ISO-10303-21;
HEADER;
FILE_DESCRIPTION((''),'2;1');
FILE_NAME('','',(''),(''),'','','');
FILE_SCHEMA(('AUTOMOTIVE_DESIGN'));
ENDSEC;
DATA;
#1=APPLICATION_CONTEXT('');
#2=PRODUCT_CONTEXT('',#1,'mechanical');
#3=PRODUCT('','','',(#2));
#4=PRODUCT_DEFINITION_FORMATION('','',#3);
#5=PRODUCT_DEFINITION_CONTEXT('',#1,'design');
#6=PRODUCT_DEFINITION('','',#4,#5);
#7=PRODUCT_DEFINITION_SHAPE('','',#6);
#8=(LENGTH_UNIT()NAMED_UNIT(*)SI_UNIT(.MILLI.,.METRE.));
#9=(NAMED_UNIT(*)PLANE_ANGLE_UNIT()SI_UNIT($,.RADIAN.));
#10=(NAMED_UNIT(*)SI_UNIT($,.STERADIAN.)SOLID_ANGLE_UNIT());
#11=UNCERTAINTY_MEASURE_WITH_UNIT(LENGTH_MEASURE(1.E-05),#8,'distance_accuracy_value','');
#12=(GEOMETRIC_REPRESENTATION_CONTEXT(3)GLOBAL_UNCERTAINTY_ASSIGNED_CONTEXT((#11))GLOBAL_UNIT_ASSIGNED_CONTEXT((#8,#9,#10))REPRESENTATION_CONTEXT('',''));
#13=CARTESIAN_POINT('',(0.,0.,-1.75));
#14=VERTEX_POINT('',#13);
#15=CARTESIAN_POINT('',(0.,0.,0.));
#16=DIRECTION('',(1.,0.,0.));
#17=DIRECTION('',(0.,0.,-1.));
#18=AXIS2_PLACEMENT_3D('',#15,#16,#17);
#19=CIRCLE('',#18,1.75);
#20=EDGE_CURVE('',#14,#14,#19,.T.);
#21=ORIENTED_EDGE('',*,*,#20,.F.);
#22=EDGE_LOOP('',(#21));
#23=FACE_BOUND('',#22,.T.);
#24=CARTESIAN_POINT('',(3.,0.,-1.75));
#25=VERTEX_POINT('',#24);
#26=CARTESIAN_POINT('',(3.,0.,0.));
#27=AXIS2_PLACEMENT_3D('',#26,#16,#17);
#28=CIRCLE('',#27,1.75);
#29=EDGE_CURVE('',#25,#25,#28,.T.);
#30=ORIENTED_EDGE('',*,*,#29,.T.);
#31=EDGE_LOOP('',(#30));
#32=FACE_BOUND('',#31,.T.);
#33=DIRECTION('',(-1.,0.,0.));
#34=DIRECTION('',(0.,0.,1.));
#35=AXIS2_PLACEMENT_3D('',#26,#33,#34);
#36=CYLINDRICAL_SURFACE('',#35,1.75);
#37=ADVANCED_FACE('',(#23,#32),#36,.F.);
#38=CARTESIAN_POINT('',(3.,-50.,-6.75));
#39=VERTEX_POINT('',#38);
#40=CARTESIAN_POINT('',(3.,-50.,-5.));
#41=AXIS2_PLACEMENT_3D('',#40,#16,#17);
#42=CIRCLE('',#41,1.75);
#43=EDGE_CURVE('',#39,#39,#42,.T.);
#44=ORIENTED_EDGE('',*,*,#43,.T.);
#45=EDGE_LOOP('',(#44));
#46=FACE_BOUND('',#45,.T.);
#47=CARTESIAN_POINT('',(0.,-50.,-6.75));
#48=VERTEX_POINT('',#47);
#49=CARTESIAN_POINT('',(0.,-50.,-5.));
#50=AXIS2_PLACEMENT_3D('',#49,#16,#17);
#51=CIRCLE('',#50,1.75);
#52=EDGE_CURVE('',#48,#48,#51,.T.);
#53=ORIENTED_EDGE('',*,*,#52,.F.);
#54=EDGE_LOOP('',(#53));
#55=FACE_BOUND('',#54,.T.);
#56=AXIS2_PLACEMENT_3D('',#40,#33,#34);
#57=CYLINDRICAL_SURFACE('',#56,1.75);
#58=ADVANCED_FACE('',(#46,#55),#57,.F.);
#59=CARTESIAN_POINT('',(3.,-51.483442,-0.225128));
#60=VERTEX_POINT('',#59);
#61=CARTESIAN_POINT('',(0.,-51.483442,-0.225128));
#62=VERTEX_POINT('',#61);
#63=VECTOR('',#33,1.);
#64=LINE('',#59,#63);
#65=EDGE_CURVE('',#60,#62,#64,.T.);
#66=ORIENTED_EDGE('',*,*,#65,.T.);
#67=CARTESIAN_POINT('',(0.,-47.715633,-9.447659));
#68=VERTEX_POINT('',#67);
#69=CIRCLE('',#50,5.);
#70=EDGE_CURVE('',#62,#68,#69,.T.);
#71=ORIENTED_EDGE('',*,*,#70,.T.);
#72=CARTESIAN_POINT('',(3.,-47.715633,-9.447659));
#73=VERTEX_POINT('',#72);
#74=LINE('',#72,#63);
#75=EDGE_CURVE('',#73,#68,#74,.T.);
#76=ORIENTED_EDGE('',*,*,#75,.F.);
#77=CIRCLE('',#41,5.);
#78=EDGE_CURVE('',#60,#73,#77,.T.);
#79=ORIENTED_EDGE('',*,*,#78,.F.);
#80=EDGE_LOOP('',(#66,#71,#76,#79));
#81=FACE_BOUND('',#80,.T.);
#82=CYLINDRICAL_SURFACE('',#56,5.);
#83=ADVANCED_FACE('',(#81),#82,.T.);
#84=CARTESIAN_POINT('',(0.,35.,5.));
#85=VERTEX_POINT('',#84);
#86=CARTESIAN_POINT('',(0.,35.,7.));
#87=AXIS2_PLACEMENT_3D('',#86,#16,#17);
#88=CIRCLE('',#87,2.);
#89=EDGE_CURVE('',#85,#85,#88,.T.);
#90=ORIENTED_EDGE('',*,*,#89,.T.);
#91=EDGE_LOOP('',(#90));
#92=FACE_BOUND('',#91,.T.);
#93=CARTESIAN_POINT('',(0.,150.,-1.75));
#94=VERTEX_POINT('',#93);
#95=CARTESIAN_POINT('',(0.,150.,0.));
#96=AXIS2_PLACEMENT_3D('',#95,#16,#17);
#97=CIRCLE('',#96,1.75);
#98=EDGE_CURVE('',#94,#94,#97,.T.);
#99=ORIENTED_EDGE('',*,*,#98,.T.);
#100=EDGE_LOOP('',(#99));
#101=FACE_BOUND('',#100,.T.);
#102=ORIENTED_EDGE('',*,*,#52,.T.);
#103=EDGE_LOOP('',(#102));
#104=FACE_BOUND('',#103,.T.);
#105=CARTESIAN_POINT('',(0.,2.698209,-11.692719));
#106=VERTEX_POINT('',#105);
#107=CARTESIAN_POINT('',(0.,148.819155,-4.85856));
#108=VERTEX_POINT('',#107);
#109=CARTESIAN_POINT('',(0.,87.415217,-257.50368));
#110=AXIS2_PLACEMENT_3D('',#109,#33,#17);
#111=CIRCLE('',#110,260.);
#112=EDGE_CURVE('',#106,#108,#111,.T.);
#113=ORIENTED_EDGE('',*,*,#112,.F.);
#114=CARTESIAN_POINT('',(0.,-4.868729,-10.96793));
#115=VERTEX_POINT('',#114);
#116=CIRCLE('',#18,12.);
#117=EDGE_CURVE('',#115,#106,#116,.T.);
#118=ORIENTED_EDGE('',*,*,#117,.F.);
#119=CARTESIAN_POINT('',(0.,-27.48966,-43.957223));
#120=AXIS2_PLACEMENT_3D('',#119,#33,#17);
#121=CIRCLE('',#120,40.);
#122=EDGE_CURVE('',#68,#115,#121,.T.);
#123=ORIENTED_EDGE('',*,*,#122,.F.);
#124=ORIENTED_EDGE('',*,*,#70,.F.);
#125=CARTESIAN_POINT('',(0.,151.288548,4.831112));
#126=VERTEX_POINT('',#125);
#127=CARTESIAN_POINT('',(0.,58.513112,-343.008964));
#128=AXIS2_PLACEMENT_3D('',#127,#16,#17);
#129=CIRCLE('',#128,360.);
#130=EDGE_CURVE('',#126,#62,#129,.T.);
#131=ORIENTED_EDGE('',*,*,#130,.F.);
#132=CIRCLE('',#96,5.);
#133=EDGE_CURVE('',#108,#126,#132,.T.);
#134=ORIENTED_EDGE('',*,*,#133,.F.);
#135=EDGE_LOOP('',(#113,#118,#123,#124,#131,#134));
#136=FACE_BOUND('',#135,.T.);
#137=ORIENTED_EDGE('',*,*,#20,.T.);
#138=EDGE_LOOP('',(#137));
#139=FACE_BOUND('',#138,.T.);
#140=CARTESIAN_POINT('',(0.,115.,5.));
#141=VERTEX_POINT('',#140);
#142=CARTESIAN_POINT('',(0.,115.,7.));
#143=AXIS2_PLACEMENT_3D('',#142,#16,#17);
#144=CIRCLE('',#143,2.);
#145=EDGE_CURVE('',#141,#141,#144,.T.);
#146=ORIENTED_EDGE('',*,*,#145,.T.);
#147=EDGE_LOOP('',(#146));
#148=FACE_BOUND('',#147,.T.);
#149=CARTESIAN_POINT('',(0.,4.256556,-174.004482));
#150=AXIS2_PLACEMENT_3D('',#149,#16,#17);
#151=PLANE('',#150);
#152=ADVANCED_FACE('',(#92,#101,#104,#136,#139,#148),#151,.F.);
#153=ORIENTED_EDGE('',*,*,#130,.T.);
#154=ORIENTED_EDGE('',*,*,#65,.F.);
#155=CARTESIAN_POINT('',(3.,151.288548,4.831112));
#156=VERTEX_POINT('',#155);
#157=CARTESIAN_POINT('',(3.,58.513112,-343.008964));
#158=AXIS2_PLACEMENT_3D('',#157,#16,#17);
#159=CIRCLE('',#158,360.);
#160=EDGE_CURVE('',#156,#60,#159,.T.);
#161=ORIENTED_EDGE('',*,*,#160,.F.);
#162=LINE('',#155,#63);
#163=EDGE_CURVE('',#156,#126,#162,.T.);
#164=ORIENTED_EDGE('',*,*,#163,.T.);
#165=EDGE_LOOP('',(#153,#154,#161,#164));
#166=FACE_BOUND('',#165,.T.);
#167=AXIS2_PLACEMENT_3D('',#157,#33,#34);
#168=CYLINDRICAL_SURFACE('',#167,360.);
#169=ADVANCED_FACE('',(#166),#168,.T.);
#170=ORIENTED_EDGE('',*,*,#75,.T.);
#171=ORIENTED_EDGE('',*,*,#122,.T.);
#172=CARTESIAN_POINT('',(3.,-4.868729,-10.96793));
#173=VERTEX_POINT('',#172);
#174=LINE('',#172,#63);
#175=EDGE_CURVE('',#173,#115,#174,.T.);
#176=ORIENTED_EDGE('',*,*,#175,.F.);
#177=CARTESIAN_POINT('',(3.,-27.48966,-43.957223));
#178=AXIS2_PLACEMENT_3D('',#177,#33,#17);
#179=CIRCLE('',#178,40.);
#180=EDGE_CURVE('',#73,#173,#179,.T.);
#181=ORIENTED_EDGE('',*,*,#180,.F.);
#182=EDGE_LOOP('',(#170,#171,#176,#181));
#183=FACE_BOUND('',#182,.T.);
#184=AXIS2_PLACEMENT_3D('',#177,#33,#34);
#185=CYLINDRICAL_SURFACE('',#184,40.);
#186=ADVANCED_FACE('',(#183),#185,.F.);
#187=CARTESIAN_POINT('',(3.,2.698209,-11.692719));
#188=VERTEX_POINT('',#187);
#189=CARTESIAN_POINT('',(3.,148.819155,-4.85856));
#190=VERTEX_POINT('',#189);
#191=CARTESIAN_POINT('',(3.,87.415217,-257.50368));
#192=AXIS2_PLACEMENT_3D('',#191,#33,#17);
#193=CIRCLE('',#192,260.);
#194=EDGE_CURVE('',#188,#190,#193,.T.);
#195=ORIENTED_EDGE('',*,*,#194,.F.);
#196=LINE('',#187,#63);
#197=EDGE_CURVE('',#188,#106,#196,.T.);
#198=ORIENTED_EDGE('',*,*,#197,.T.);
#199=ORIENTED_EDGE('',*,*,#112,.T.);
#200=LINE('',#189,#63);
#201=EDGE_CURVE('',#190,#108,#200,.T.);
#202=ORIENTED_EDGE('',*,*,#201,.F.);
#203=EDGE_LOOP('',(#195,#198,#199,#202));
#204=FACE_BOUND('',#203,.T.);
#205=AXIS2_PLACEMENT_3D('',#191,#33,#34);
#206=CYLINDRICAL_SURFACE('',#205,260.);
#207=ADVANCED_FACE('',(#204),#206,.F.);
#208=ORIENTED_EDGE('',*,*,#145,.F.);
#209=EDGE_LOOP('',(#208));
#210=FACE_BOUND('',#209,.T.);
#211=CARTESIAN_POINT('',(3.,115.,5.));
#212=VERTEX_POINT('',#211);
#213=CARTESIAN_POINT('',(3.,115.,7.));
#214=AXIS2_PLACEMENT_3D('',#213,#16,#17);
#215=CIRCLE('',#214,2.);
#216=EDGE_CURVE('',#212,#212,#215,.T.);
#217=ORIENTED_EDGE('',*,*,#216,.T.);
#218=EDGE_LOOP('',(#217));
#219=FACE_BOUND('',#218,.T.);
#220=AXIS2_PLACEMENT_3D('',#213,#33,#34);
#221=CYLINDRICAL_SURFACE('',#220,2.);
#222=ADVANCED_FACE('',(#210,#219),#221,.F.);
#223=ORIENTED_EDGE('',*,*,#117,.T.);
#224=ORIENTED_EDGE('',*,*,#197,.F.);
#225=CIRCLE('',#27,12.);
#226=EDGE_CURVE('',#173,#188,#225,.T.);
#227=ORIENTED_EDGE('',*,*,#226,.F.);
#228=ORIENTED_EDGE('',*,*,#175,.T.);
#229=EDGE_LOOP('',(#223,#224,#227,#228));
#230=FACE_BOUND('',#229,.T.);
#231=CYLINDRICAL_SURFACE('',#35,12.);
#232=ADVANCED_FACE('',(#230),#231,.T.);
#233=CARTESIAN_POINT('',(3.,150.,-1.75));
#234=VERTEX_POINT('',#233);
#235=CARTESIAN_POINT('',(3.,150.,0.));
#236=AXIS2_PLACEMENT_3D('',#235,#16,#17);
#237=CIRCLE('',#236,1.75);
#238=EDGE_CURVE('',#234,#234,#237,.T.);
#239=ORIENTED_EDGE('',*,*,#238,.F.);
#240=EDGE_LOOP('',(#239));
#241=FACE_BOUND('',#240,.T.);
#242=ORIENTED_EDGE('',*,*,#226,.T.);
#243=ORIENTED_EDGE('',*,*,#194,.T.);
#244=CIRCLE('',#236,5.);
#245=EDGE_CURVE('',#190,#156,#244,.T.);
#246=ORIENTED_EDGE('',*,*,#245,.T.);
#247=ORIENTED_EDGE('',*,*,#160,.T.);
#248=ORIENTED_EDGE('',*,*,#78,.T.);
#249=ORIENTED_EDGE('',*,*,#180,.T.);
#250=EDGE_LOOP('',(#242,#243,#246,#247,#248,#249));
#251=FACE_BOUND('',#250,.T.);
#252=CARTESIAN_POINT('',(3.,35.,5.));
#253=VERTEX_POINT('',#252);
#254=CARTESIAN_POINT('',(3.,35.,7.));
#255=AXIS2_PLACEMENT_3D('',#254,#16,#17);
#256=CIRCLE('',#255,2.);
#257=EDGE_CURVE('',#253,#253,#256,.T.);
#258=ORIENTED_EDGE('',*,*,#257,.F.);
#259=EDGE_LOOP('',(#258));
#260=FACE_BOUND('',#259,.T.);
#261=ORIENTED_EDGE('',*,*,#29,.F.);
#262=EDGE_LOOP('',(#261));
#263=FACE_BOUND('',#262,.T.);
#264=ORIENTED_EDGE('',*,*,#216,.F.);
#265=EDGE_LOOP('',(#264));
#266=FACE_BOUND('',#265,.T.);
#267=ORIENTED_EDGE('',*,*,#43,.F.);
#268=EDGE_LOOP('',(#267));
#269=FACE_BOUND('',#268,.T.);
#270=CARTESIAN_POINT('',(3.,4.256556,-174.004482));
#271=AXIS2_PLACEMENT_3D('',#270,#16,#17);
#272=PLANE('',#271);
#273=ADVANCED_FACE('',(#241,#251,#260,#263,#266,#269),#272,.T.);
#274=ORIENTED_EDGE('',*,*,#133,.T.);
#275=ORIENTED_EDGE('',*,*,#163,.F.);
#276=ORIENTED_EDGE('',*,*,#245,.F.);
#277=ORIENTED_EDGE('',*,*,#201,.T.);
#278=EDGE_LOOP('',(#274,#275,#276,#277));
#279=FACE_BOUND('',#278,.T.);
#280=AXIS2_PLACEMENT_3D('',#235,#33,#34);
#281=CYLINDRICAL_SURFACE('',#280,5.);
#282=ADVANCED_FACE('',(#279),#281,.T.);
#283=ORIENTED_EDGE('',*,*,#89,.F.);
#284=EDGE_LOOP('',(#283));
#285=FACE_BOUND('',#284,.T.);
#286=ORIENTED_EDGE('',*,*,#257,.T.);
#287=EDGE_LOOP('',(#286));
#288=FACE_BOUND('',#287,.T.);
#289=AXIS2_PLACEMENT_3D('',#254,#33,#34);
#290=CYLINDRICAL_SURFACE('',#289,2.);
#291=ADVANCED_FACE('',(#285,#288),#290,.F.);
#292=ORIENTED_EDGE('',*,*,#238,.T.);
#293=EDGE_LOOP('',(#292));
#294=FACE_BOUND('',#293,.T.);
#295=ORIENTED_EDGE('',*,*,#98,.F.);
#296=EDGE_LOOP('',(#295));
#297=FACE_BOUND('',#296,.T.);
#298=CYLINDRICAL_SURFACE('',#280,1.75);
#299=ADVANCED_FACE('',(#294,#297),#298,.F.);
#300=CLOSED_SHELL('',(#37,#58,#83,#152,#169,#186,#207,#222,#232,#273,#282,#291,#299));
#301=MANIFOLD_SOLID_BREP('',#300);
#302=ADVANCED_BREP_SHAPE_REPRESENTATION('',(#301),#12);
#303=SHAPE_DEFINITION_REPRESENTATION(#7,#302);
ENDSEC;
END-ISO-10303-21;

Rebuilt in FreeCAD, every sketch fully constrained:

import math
import FreeCAD as App
import Part
import Sketcher

doc = App.newDocument("Part")
body = doc.addObject("PartDesign::Body", "Body")

# Sketch on YZ plane
sketch1 = body.newObject("Sketcher::SketchObject", "Sketch")
sketch1.AttachmentSupport = (doc.getObject("YZ_Plane"), [""])
sketch1.MapMode = "FlatFace"
sketch1.addGeometry([
    Part.ArcOfCircle(Part.Circle(App.Vector(-50, -5, 0), App.Vector(0, 0, 1), 5), math.radians(107.258814), math.radians(297.185535)),  # 0
    Part.ArcOfCircle(Part.Circle(App.Vector(-27.48966, -43.957223, 0), App.Vector(0, 0, 1), 40), math.radians(55.561363), math.radians(120.374466)),  # 1
    Part.ArcOfCircle(Part.Circle(App.Vector(0, 0, 0), App.Vector(0, 0, 1), 12), math.radians(-113.936719), math.radians(-77.005899)),  # 2
    Part.ArcOfCircle(Part.Circle(App.Vector(87.415217, -257.50368, 0), App.Vector(0, 0, 1), 260), math.radians(76.339459), math.radians(109.01615)),  # 3
    Part.ArcOfCircle(Part.Circle(App.Vector(150, 0, 0), App.Vector(0, 0, 1), 5), math.radians(-103.660541), math.radians(75.065802)),  # 4
    Part.ArcOfCircle(Part.Circle(App.Vector(58.513112, -343.008964, 0), App.Vector(0, 0, 1), 360), math.radians(75.065802), math.radians(107.791015)),  # 5
    Part.Circle(App.Vector(35, 7, 0), App.Vector(0, 0, 1), 2),  # 6
    Part.Circle(App.Vector(-50, -5, 0), App.Vector(0, 0, 1), 1.75),  # 7
    Part.Circle(App.Vector(0, 0, 0), App.Vector(0, 0, 1), 1.75),  # 8
    Part.Circle(App.Vector(115, 7, 0), App.Vector(0, 0, 1), 2),  # 9
    Part.Circle(App.Vector(150, 0, 0), App.Vector(0, 0, 1), 1.75),  # 10
], False)
sketch1.addConstraint([
    Sketcher.Constraint("Coincident", 0, 2, 1, 2),
    Sketcher.Constraint("Coincident", 1, 1, 2, 1),
    Sketcher.Constraint("Coincident", 2, 2, 3, 2),
    Sketcher.Constraint("Tangent", 3, 1, 4, 1),
    Sketcher.Constraint("Tangent", 4, 2, 5, 1),
    Sketcher.Constraint("Coincident", 5, 2, 0, 1),
    Sketcher.Constraint("Coincident", 2, 3, -1, 1),
    Sketcher.Constraint("Coincident", 8, 3, -1, 1),
    Sketcher.Constraint("Coincident", 7, 3, 0, 3),
    Sketcher.Constraint("Coincident", 10, 3, 4, 3),
    Sketcher.Constraint("Equal", 0, 4),
    Sketcher.Constraint("Equal", 7, 8),
    Sketcher.Constraint("Equal", 6, 9),
    Sketcher.Constraint("Equal", 8, 10),
    Sketcher.Constraint("PointOnObject", 4, 3, -1),
    Sketcher.Constraint("Horizontal", 6, 3, 9, 3),
    Sketcher.Constraint("Diameter", 6, 4.0),
    Sketcher.Constraint("Radius", 0, 5.0),
    Sketcher.Constraint("Radius", 1, 40.0),
    Sketcher.Constraint("Radius", 2, 12.0),
    Sketcher.Constraint("Radius", 3, 260.0),
    Sketcher.Constraint("Radius", 5, 360.0),
    Sketcher.Constraint("Diameter", 7, 3.5),
    Sketcher.Constraint("DistanceX", 0, 3, -1, 1, 50.0),
    Sketcher.Constraint("DistanceY", 0, 3, -1, 1, 5.0),
    Sketcher.Constraint("DistanceX", -1, 1, 4, 3, 150.0),
    Sketcher.Constraint("DistanceX", -1, 1, 6, 3, 35.0),
    Sketcher.Constraint("DistanceY", -1, 1, 6, 3, 7.0),
    Sketcher.Constraint("DistanceX", -1, 1, 9, 3, 115.0),
    Sketcher.Constraint("DistanceY", 1, 1, 5, 2, 10.742801),
    Sketcher.Constraint("DistanceX", 1, 3, -1, 1, 27.48966),
    Sketcher.Constraint("DistanceY", 3, 3, -1, 1, 257.50368),
    Sketcher.Constraint("DistanceY", 0, 2, -1, 1, 9.447659),
])
pad1 = body.newObject("PartDesign::Pad", "Pad")
pad1.Profile = sketch1
pad1.Length = 3

doc.recompute()
